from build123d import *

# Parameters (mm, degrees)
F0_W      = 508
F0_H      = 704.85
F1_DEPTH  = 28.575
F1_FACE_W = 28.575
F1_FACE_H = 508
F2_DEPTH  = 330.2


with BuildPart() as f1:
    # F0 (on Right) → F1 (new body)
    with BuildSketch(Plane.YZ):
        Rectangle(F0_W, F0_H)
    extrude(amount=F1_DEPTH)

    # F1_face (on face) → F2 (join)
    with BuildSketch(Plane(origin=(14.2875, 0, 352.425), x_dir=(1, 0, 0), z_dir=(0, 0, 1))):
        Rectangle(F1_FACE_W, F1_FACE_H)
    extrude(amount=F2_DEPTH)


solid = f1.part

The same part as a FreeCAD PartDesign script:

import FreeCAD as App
import Part
import Sketcher

V = App.Vector
Q = App.Units.Quantity

doc = App.newDocument("Part")
params = doc.addObject("Spreadsheet::Sheet", "Params")
for row, (alias, value) in enumerate([
    ("sketch1_width", "20 in"),
    ("sketch1_height", "27.75 in"),
    ("pad1_length", "1.125 in"),
    ("sketch2_height", "20 in"),
    ("sketch2_width", "1.125 in"),
    ("pad2_length", "13 in"),
], start=1):
    params.set(f"A{row}", alias)
    params.set(f"B{row}", "=" + value)
    params.setAlias(f"B{row}", alias)

body = doc.addObject("PartDesign::Body", "Body")

# Sketch on YZ plane
sketch1 = body.newObject("Sketcher::SketchObject", "Sketch")
sketch1.AttachmentSupport = (doc.getObject("YZ_Plane"), [""])
sketch1.MapMode = "FlatFace"
sketch1.addGeometry(Part.LineSegment(V(-254, 352, 0), V(-254, -352, 0)), False)
sketch1.addGeometry(Part.LineSegment(V(-254, -352, 0), V(254, -352, 0)), False)
sketch1.addGeometry(Part.LineSegment(V(254, -352, 0), V(254, 352, 0)), False)
sketch1.addGeometry(Part.LineSegment(V(254, 352, 0), V(-254, 352, 0)), False)
sketch1.addConstraint(Sketcher.Constraint("Coincident", 0, 2, 1, 1))
sketch1.addConstraint(Sketcher.Constraint("Coincident", 1, 2, 2, 1))
sketch1.addConstraint(Sketcher.Constraint("Coincident", 2, 2, 3, 1))
sketch1.addConstraint(Sketcher.Constraint("Coincident", 3, 2, 0, 1))
sketch1.addConstraint(Sketcher.Constraint("Vertical", 0))
sketch1.addConstraint(Sketcher.Constraint("Horizontal", 1))
sketch1.addConstraint(Sketcher.Constraint("Vertical", 2))
sketch1.addConstraint(Sketcher.Constraint("Horizontal", 3))
sketch1.addConstraint(Sketcher.Constraint("Symmetric", 0, 2, 2, 2, -1, 1))
sketch1.addConstraint(Sketcher.Constraint("DistanceX", 1, 1, 1, 2, Q("20 in")))
sketch1.addConstraint(Sketcher.Constraint("DistanceY", 0, 2, 0, 1, Q("27.75 in")))
sketch1.setExpression("Constraints[9]", "Params.sketch1_width")
sketch1.setExpression("Constraints[10]", "Params.sketch1_height")
pad1 = body.newObject("PartDesign::Pad", "Pad")
pad1.Profile = sketch1
pad1.setExpression("Length", "Params.pad1_length")

# Sketch on XY plane
sketch2 = body.newObject("Sketcher::SketchObject", "Sketch001")
sketch2.AttachmentSupport = (doc.getObject("XY_Plane"), [""])
sketch2.MapMode = "FlatFace"
sketch2.AttachmentOffset = App.Placement(V(0, 0, 13.875 * 25.4), App.Rotation())
sketch2.addGeometry(Part.LineSegment(V(0, 254, 0), V(0, -254, 0)), False)
sketch2.addGeometry(Part.LineSegment(V(0, -254, 0), V(29, -254, 0)), False)
sketch2.addGeometry(Part.LineSegment(V(29, -254, 0), V(29, 254, 0)), False)
sketch2.addGeometry(Part.LineSegment(V(29, 254, 0), V(0, 254, 0)), False)
sketch2.addConstraint(Sketcher.Constraint("Coincident", 0, 2, 1, 1))
sketch2.addConstraint(Sketcher.Constraint("Coincident", 1, 2, 2, 1))
sketch2.addConstraint(Sketcher.Constraint("Coincident", 2, 2, 3, 1))
sketch2.addConstraint(Sketcher.Constraint("Coincident", 3, 2, 0, 1))
sketch2.addConstraint(Sketcher.Constraint("Vertical", 0))
sketch2.addConstraint(Sketcher.Constraint("Horizontal", 1))
sketch2.addConstraint(Sketcher.Constraint("Vertical", 2))
sketch2.addConstraint(Sketcher.Constraint("Horizontal", 3))
sketch2.addConstraint(Sketcher.Constraint("Symmetric", 0, 2, 3, 2, -1, 1))
sketch2.addConstraint(Sketcher.Constraint("DistanceY", 0, 2, 0, 1, Q("20 in")))
sketch2.addConstraint(Sketcher.Constraint("DistanceX", 1, 1, 1, 2, Q("1.125 in")))
sketch2.setExpression("Constraints[9]", "Params.sketch2_height")
sketch2.setExpression("Constraints[10]", "Params.sketch2_width")
pad2 = body.newObject("PartDesign::Pad", "Pad001")
pad2.Profile = sketch2
pad2.setExpression("Length", "Params.pad2_length")

doc.recompute()
